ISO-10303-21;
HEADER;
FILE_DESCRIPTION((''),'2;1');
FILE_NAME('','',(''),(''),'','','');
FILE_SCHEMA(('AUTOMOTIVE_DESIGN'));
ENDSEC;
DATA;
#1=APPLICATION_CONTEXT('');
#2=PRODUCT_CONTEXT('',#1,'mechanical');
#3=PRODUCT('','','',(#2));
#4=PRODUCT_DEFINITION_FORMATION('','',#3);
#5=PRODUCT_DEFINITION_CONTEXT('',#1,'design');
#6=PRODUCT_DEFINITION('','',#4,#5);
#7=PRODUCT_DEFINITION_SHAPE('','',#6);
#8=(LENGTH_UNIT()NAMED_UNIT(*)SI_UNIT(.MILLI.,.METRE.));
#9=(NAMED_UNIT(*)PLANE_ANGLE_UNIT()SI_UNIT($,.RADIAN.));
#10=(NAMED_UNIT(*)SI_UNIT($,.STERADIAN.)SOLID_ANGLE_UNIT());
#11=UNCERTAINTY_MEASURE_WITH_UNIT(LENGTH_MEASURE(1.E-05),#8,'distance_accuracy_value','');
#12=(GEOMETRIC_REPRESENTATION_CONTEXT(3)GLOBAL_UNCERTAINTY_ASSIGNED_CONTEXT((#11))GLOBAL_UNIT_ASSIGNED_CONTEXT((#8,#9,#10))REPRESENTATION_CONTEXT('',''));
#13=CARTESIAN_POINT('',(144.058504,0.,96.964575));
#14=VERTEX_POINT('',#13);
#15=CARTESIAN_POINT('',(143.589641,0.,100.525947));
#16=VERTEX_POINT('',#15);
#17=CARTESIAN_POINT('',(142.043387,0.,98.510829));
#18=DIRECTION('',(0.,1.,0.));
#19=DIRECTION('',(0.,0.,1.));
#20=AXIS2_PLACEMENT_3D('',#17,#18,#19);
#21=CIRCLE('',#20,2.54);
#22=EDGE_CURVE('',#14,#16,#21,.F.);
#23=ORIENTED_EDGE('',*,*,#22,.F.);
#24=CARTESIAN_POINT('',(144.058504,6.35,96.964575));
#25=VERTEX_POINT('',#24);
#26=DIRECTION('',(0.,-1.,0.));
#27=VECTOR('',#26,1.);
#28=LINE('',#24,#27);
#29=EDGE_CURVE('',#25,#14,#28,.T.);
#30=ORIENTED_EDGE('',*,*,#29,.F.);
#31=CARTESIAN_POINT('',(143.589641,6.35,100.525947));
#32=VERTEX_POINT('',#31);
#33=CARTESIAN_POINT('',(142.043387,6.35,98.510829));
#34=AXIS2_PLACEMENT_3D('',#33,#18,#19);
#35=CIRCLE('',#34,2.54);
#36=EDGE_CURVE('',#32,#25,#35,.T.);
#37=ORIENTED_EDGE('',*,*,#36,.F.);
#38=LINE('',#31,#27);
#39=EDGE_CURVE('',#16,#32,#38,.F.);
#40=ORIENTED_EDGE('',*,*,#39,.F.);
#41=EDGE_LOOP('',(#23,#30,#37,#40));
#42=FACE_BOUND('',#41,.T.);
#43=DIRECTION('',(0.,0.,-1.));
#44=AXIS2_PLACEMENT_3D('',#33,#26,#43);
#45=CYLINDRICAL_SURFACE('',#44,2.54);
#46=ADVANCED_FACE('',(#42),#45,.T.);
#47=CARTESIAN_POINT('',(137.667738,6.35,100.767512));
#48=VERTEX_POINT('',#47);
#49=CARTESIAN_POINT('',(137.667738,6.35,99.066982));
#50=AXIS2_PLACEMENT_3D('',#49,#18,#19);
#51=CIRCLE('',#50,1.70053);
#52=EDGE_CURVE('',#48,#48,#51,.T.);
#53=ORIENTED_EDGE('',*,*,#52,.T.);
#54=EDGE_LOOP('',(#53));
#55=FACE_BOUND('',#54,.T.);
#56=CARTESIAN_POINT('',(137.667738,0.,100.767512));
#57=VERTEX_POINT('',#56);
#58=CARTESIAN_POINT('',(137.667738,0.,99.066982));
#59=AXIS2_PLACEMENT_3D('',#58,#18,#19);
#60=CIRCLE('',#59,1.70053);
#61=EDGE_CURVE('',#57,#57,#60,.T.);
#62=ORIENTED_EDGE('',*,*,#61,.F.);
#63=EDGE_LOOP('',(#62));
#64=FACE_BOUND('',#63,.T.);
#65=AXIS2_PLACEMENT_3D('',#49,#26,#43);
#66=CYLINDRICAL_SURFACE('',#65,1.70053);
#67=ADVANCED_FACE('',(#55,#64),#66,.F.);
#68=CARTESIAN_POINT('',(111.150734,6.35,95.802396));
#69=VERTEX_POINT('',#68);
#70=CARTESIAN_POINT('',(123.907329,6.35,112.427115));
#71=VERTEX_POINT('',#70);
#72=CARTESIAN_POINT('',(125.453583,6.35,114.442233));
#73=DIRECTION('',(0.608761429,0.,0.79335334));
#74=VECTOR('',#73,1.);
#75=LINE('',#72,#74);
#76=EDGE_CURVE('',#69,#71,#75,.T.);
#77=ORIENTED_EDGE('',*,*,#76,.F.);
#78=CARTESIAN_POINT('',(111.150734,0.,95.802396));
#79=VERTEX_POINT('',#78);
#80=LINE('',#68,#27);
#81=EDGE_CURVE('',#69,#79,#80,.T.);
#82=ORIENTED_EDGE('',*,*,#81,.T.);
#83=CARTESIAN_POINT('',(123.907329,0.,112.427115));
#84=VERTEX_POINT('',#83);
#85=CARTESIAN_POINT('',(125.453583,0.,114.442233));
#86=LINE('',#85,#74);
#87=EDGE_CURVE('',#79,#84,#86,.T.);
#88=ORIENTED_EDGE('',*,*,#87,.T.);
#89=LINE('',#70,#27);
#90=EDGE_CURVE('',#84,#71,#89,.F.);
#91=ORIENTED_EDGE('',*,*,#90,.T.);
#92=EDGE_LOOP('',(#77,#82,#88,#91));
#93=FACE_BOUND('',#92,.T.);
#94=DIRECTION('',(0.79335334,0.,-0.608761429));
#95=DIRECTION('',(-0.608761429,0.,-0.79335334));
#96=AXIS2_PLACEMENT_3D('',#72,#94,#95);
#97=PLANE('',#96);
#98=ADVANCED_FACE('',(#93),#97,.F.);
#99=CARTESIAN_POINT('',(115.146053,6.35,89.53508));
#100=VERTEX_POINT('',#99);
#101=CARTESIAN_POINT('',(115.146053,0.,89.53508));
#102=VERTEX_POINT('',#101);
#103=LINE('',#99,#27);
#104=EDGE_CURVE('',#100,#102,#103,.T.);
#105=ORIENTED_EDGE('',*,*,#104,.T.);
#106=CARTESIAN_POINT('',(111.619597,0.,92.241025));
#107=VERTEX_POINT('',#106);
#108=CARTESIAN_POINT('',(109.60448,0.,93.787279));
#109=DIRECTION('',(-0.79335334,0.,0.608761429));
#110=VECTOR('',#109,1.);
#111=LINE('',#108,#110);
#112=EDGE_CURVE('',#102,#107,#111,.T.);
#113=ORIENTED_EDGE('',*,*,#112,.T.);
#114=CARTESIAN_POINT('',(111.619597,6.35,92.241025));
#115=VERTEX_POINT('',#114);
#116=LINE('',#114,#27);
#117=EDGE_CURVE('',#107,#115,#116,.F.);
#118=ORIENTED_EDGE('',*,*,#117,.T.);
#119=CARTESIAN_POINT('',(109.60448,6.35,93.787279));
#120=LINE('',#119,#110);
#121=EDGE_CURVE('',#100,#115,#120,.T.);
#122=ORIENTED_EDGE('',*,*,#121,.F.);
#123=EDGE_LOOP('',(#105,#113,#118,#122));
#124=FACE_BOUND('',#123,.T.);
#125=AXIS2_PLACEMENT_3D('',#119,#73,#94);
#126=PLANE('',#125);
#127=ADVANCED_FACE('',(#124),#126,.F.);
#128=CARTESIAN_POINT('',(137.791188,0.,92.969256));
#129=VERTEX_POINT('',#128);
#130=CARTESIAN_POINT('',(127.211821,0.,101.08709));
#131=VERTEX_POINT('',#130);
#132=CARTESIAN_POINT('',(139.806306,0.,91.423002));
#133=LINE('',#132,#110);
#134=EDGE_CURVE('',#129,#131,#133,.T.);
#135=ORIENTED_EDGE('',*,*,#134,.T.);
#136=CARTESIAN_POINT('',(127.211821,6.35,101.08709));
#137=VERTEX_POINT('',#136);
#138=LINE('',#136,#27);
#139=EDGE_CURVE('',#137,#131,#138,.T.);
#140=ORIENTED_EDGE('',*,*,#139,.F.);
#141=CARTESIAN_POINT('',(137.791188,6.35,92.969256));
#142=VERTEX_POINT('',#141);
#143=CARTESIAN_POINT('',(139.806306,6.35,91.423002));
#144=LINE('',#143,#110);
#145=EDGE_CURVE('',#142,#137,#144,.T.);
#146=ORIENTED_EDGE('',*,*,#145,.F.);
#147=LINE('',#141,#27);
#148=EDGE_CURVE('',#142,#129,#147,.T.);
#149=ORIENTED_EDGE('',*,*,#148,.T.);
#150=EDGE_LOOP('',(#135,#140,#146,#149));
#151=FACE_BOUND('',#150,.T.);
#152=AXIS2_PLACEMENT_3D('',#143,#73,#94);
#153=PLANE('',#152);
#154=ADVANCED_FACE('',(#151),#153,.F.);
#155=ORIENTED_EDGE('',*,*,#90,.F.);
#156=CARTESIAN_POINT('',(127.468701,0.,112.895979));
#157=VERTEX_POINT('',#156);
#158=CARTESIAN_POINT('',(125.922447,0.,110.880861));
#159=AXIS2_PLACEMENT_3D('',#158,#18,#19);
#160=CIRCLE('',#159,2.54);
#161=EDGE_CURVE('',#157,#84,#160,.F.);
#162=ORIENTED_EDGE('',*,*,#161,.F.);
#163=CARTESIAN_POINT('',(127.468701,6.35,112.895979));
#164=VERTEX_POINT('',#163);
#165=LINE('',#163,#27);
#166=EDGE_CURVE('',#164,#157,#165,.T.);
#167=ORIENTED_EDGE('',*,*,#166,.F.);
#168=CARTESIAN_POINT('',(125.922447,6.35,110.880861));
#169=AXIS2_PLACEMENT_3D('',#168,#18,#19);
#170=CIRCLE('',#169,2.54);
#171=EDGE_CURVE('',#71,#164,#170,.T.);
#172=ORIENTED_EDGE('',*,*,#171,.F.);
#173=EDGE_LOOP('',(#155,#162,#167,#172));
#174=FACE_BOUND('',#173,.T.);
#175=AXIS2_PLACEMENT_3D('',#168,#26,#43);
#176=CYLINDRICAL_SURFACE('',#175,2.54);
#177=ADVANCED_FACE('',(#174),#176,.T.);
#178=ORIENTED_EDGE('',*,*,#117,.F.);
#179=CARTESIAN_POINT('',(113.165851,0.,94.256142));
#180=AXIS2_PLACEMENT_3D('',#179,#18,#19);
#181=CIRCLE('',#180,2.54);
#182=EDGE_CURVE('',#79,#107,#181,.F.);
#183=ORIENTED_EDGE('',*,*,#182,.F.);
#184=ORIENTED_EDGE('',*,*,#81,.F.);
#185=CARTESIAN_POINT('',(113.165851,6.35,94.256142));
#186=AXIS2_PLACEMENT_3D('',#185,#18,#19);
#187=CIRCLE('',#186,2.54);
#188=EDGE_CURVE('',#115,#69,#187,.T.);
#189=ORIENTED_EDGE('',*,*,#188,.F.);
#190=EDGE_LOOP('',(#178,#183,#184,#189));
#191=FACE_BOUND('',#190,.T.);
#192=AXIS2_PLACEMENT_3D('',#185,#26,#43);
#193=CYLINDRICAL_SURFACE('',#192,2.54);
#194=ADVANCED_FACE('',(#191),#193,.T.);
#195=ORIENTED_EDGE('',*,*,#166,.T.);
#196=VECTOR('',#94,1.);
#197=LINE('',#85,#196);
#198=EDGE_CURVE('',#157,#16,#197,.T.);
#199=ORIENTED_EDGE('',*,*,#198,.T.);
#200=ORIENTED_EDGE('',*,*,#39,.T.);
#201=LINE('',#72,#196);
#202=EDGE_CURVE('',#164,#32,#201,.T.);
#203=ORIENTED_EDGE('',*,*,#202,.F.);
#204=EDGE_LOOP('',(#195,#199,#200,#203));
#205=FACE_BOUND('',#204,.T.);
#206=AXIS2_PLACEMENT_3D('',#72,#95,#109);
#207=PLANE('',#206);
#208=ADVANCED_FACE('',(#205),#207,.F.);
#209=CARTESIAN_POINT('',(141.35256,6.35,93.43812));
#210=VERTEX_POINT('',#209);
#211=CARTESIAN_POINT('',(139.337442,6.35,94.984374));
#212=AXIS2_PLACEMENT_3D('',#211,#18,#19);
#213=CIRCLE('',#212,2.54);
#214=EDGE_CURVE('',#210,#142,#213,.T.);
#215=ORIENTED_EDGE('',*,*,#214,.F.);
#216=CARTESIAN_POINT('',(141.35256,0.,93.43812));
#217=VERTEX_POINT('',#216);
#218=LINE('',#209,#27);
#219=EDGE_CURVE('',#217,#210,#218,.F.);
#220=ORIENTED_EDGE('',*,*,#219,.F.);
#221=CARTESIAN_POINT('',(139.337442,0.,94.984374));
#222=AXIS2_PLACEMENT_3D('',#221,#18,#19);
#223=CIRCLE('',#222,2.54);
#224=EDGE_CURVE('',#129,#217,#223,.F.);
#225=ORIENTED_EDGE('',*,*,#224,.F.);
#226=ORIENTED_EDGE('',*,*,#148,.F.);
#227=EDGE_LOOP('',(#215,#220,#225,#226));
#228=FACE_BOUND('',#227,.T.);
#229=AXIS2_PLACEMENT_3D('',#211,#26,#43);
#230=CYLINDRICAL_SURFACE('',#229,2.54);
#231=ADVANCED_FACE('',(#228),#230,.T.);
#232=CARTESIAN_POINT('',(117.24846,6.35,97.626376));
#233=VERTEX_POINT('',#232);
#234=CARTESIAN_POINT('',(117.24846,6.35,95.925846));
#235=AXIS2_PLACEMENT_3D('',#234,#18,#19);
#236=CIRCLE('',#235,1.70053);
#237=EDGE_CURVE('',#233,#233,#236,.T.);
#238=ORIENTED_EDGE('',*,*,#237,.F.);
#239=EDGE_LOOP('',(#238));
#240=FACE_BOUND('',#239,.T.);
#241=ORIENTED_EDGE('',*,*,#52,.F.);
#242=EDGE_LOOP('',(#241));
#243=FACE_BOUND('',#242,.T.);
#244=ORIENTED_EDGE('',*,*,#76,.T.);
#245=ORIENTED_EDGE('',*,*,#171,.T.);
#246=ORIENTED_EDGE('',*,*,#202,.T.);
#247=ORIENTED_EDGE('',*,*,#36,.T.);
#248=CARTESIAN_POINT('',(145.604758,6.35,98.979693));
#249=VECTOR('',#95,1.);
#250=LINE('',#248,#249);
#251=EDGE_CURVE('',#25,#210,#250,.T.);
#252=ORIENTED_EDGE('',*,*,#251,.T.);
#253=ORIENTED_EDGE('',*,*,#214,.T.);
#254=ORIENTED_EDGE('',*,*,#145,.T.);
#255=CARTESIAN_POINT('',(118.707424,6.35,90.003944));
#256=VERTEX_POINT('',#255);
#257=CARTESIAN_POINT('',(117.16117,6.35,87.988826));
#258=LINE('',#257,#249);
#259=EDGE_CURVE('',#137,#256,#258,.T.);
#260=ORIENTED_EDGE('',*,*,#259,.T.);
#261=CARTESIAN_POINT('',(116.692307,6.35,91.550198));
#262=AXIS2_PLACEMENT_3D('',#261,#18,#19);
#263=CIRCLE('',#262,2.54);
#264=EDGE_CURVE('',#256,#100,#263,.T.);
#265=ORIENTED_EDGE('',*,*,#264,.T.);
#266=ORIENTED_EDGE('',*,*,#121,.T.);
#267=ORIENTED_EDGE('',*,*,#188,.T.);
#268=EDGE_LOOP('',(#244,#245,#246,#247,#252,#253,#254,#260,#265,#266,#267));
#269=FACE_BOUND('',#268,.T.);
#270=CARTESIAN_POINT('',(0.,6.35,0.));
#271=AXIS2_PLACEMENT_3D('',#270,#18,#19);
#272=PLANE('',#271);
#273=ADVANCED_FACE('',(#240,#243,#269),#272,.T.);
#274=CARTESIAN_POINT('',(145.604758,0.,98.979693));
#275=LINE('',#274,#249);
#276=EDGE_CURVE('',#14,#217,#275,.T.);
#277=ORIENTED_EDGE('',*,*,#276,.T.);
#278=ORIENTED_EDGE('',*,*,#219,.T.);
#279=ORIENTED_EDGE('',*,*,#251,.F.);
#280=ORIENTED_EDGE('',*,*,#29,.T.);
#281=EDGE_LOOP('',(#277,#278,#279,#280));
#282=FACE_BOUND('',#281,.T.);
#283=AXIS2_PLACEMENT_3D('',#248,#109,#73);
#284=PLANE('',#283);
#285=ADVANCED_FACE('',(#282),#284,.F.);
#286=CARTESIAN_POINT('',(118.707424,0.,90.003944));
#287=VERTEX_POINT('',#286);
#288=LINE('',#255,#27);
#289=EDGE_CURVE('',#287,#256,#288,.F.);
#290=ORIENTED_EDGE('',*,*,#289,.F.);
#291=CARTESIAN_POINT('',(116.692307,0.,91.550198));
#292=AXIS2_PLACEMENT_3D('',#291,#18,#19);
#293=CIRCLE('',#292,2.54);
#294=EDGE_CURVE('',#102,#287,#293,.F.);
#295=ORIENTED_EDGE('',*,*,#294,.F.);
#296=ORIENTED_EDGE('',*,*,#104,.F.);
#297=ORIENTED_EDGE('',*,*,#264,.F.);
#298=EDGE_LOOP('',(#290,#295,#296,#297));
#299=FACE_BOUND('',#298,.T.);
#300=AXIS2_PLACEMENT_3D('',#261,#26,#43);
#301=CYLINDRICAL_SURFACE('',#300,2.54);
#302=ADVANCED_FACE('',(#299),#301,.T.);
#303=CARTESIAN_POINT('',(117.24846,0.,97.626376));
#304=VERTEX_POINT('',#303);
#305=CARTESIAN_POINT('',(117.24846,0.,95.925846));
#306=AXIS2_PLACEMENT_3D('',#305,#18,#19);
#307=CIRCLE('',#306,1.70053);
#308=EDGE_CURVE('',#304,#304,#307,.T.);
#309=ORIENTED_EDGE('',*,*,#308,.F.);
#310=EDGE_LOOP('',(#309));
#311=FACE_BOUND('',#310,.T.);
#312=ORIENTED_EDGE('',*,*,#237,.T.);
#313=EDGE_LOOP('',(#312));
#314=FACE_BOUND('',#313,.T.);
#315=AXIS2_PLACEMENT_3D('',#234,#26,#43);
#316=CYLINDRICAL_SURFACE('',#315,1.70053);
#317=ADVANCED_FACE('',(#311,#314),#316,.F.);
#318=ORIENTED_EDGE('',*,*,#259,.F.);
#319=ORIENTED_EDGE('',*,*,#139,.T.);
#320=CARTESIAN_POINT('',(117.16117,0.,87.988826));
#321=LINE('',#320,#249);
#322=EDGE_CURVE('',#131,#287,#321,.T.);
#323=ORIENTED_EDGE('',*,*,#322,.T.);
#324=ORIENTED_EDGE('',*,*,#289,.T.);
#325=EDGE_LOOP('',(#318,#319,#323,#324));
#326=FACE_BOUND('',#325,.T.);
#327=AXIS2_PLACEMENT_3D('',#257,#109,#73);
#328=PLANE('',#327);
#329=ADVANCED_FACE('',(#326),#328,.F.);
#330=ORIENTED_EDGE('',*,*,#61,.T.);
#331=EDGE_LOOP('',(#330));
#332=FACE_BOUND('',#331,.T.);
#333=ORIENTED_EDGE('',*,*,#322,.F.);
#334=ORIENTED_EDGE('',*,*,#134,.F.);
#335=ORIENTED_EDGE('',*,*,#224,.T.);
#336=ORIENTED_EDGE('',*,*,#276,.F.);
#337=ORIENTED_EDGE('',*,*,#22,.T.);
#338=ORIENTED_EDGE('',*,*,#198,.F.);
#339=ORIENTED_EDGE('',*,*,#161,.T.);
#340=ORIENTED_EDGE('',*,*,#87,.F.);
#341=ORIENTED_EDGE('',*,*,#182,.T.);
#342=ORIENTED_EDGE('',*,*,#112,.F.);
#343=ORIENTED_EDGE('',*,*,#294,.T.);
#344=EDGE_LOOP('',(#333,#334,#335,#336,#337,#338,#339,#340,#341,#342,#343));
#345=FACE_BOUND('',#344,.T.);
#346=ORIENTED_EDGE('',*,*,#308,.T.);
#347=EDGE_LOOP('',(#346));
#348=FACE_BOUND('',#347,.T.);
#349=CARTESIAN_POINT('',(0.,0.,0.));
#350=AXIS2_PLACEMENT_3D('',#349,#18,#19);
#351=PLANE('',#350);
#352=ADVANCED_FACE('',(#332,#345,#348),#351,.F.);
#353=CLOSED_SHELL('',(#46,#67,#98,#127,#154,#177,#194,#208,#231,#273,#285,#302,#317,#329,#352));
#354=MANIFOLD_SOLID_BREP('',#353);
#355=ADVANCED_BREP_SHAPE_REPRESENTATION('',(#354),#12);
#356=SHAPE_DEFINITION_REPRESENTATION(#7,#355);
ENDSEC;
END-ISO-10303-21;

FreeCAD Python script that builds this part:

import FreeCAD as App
import Part
import Sketcher
from FreeCAD import Vector
Q = App.Units.Quantity


def edges_at(feature, points):
    """Names of the edges that pass closest to the given points."""
    edges = feature.Shape.Edges
    near = lambda p: min(range(len(edges)), key=lambda i: edges[i].distToShape(Part.Vertex(*p))[0])
    return sorted({f"Edge{near(p) + 1}" for p in points})

doc = App.newDocument("Part")
body = doc.addObject("PartDesign::Body", "Body")

sketch1 = body.newObject("Sketcher::SketchObject", "Sketch")
sketch1.AttachmentSupport = (doc.getObject("XZ_Plane"), [""])
sketch1.MapMode = "FlatFace"
sketch1.addGeometry([
    Part.LineSegment(Vector(125.5, 114.4, 0), Vector(145.6, 99, 0)),
    Part.LineSegment(Vector(145.6, 99, 0), Vector(139.8, 91.4, 0)),
    Part.LineSegment(Vector(139.8, 91.4, 0), Vector(127.2, 101.1, 0)),
    Part.LineSegment(Vector(127.2, 101.1, 0), Vector(117.2, 88, 0)),
    Part.LineSegment(Vector(117.2, 88, 0), Vector(109.6, 93.8, 0)),
    Part.LineSegment(Vector(109.6, 93.8, 0), Vector(125.5, 114.4, 0)),
    Part.Circle(Vector(137.7, 99.1, 0), Vector(0, 0, 1), 1.7),
    Part.Circle(Vector(117.2, 95.9, 0), Vector(0, 0, 1), 1.7),
], False)
sketch1.addConstraint([
    Sketcher.Constraint("Coincident", 0, 2, 1, 1),
    Sketcher.Constraint("Coincident", 1, 2, 2, 1),
    Sketcher.Constraint("Coincident", 2, 2, 3, 1),
    Sketcher.Constraint("Coincident", 3, 2, 4, 1),
    Sketcher.Constraint("Coincident", 4, 2, 5, 1),
    Sketcher.Constraint("Coincident", 5, 2, 0, 1),
    Sketcher.Constraint("Equal", 6, 7),
    Sketcher.Constraint("Perpendicular", 0, 1),
    Sketcher.Constraint("Perpendicular", 1, 2),
    Sketcher.Constraint("Perpendicular", 2, 3),
    Sketcher.Constraint("Perpendicular", 3, 4),
    Sketcher.Constraint("Perpendicular", 4, 5),
    Sketcher.Constraint("Equal", 1, 4),
    Sketcher.Constraint("Distance", 0, Q("1 in")),
    Sketcher.Constraint("Diameter", 6, Q("0.1339 in")),
    Sketcher.Constraint("Angle", 0, Q("-37.5 deg")),
    Sketcher.Constraint("Distance", 3, Q("0.65 in")),
    Sketcher.Constraint("Distance", 1, Q("0.375 in")),
    Sketcher.Constraint("DistanceX", 7, 3, 0, 2, Q("28.356298 mm")),
    Sketcher.Constraint("DistanceX", -1, 1, 6, 3, Q("137.667738 mm")),
    Sketcher.Constraint("DistanceX", -1, 1, 7, 3, Q("117.24846 mm")),
    Sketcher.Constraint("DistanceY", -1, 1, 2, 2, Q("101.08709 mm")),
    Sketcher.Constraint("DistanceY", 0, 2, 6, 3, Q("0.08729 mm")),
    Sketcher.Constraint("DistanceY", 3, 2, 7, 3, Q("7.93702 mm")),
])
pad1 = body.newObject("PartDesign::Pad", "Pad")
pad1.Profile = sketch1
pad1.Length = Q("0.25 in")
pad1.Reversed = True
doc.recompute()

fillet = body.newObject("PartDesign::Fillet", "Fillet")
fillet.Base = (pad1, edges_at(pad1, [
    (139.806, 3.175, 91.423),
    (145.605, 3.175, 98.98),
    (125.454, 3.175, 114.442),
    (109.604, 3.175, 93.787),
    (117.161, 3.175, 87.989),
]))
fillet.Radius = Q("0.1 in")

doc.recompute()
